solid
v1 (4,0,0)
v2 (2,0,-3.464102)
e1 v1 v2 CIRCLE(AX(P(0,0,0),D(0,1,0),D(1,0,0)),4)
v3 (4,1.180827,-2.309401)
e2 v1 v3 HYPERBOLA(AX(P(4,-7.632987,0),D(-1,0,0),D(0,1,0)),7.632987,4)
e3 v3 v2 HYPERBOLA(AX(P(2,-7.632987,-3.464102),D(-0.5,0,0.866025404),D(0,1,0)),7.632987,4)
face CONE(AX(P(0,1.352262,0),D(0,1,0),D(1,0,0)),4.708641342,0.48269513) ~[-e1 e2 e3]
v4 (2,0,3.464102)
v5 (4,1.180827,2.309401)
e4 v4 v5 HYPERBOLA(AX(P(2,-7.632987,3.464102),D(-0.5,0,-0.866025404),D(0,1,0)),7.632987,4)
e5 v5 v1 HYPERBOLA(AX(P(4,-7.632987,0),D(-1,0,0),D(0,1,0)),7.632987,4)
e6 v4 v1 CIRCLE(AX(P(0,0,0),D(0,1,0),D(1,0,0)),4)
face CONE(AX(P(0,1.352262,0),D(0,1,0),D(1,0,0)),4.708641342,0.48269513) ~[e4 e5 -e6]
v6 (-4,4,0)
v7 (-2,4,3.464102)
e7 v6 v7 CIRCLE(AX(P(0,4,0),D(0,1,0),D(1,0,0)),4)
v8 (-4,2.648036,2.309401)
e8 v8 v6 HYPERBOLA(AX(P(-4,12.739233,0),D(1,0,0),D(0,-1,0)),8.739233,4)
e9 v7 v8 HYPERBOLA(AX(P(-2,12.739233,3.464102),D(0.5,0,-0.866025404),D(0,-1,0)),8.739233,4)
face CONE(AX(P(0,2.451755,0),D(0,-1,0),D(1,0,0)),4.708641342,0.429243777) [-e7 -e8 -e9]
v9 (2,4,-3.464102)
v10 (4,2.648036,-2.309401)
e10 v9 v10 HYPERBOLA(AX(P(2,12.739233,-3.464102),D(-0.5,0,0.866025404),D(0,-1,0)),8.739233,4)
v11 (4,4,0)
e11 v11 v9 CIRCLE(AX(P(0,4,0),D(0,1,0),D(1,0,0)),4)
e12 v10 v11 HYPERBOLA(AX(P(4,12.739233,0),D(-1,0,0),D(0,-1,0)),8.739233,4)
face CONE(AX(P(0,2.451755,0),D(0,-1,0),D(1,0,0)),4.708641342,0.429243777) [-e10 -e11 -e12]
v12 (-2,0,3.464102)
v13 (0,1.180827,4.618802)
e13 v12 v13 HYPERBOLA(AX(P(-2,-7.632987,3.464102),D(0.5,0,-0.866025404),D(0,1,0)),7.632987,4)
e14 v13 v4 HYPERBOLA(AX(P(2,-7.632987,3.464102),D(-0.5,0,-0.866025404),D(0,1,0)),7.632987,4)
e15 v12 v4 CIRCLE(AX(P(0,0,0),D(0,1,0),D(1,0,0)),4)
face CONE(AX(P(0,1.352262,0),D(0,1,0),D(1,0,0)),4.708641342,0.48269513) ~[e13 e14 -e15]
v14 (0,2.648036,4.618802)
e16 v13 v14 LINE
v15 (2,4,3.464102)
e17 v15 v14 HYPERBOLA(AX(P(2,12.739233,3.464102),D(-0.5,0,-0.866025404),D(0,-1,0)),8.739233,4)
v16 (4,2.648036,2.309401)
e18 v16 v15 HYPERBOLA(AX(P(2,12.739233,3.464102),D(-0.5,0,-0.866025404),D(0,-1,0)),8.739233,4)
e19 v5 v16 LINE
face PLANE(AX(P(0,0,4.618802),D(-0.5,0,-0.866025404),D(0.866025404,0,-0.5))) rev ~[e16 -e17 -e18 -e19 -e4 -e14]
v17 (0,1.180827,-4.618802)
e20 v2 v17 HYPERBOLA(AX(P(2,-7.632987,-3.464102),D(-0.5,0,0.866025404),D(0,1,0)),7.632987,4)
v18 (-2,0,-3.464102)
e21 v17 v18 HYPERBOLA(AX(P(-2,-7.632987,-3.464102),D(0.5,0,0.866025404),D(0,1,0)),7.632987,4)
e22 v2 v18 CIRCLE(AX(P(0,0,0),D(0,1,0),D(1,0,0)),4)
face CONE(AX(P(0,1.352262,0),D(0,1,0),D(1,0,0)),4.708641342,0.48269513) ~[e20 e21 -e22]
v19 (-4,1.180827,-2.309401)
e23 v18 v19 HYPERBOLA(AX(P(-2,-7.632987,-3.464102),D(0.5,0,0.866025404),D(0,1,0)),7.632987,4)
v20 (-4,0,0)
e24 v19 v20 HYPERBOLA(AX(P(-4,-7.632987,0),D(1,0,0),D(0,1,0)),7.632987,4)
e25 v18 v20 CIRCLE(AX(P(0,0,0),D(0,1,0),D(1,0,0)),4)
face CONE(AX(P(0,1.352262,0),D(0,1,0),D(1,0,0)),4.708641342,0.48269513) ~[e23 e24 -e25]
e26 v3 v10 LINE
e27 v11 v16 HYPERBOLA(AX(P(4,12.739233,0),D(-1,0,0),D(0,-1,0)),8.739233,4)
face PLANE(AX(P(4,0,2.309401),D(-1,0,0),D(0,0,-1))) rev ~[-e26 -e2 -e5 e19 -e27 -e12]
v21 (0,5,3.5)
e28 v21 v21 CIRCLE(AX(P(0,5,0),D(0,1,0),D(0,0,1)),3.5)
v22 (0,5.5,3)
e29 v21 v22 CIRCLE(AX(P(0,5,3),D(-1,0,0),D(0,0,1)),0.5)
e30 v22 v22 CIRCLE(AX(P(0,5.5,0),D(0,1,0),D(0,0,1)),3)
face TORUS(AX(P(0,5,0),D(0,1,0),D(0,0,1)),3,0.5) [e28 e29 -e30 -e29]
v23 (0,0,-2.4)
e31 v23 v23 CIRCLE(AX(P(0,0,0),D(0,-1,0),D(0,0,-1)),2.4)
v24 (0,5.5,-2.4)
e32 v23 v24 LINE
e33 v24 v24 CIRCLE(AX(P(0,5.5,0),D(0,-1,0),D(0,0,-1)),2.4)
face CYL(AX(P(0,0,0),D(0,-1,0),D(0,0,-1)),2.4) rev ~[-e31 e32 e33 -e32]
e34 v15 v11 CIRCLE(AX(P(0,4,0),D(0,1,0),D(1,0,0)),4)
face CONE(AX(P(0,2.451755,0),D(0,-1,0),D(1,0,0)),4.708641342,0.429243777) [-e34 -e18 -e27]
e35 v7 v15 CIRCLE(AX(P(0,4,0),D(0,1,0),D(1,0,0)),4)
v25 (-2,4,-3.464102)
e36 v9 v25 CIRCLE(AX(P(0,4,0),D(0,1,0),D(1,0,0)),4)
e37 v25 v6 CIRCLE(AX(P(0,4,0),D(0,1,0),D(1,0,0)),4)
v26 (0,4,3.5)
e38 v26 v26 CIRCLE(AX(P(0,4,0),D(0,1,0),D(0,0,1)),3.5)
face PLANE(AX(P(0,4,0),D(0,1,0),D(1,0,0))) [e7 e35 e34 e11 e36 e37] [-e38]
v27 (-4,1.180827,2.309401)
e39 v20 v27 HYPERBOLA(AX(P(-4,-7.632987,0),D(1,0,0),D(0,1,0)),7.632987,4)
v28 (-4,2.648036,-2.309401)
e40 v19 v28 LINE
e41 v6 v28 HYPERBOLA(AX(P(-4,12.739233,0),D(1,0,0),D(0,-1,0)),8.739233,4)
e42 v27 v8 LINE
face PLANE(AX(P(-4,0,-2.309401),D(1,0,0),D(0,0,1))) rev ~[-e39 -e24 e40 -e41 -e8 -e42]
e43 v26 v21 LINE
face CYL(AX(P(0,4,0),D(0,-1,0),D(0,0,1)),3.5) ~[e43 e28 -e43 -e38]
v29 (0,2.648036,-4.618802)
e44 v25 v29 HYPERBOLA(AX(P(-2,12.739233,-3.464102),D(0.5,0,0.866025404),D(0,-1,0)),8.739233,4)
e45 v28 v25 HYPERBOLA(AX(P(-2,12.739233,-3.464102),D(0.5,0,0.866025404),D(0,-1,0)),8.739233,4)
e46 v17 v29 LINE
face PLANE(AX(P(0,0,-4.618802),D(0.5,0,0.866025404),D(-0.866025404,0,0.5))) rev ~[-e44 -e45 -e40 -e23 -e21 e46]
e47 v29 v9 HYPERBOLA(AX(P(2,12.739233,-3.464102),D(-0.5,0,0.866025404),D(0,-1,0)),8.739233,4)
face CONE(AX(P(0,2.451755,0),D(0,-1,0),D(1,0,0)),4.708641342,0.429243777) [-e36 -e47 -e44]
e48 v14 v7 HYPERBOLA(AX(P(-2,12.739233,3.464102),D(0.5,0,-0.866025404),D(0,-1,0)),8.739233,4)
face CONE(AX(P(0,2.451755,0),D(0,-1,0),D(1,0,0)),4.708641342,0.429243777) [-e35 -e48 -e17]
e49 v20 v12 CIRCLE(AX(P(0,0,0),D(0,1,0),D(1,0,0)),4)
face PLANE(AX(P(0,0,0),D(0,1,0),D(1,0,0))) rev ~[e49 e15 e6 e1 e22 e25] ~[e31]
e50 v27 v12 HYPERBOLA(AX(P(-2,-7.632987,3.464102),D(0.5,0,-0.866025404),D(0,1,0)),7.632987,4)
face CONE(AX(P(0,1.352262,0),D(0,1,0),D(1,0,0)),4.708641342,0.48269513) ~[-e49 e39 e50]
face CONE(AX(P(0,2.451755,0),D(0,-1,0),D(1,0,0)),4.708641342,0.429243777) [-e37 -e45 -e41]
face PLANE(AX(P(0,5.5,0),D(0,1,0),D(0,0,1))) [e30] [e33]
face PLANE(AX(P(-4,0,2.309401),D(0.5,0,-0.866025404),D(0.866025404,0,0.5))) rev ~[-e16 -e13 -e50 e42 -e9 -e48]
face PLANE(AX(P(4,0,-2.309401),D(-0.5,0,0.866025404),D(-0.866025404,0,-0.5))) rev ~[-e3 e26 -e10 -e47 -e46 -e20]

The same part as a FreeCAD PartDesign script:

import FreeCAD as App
import Part
import Sketcher
from FreeCAD import Vector
Q = App.Units.Quantity


def edges_at(feature, points):
    """Names of the edges that pass closest to the given points."""
    edges = feature.Shape.Edges
    near = lambda p: min(range(len(edges)), key=lambda i: edges[i].distToShape(Part.Vertex(*p))[0])
    return sorted({f"Edge{near(p) + 1}" for p in points})

doc = App.newDocument("Part")
body = doc.addObject("PartDesign::Body", "Body")

# Sketch on XZ plane
sketch1 = doc.addObject("Sketcher::SketchObject", "Sketch")
body.addObject(sketch1)
sketch1.AttachmentSupport = (doc.XZ_Plane, [""])
sketch1.MapMode = "FlatFace"
sketch1.addGeometry(Part.LineSegment(Vector(4, -2.309401, 0), Vector(0, -4.618802, 0)), False)
sketch1.addGeometry(Part.LineSegment(Vector(0, -4.618802, 0), Vector(-4, -2.309401, 0)), False)
sketch1.addGeometry(Part.LineSegment(Vector(-4, -2.309401, 0), Vector(-4, 2.309401, 0)), False)
sketch1.addGeometry(Part.LineSegment(Vector(-4, 2.309401, 0), Vector(0, 4.618802, 0)), False)
sketch1.addGeometry(Part.LineSegment(Vector(0, 4.618802, 0), Vector(4, 2.309401, 0)), False)
sketch1.addGeometry(Part.LineSegment(Vector(4, 2.309401, 0), Vector(4, -2.309401, 0)), False)
sketch1.addConstraint(Sketcher.Constraint("Coincident", 0, 2, 1, 1))
sketch1.addConstraint(Sketcher.Constraint("Coincident", 1, 2, 2, 1))
sketch1.addConstraint(Sketcher.Constraint("Coincident", 2, 2, 3, 1))
sketch1.addConstraint(Sketcher.Constraint("Coincident", 3, 2, 4, 1))
sketch1.addConstraint(Sketcher.Constraint("Coincident", 4, 2, 5, 1))
sketch1.addConstraint(Sketcher.Constraint("Coincident", 5, 2, 0, 1))
sketch1.addConstraint(Sketcher.Constraint("Vertical", 2))
sketch1.addConstraint(Sketcher.Constraint("Vertical", 5))
sketch1.addConstraint(Sketcher.Constraint("Symmetric", 0, 2, 3, 2, -1, 1))
sketch1.addConstraint(Sketcher.Constraint("Symmetric", 1, 2, 4, 2, -1, 1))
sketch1.addConstraint(Sketcher.Constraint("PointOnObject", 0, 2, -2))
sketch1.addConstraint(Sketcher.Constraint("Parallel", 0, 3))
sketch1.addConstraint(Sketcher.Constraint("Horizontal", 2, 2, 4, 2))
sketch1.addConstraint(Sketcher.Constraint("Angle", 0, Q("-150 deg")))
sketch1.addConstraint(Sketcher.Constraint("DistanceX", 1, 2, -1, 1, 4.0))
sketch1.addConstraint(Sketcher.Constraint("DistanceY", 1, 2, -1, 1, 2.309401))
pad1 = doc.addObject("PartDesign::Pad", "Pad")
body.addObject(pad1)
pad1.Profile = sketch1
pad1.Length = 4
pad1.Reversed = True

# Sketch on XZ plane
sketch2 = doc.addObject("Sketcher::SketchObject", "Sketch001")
body.addObject(sketch2)
sketch2.AttachmentSupport = (doc.XZ_Plane, [""])
sketch2.MapMode = "FlatFace"
sketch2.AttachmentOffset = App.Placement(Vector(0, 0, -4), App.Rotation())
sketch2.addGeometry(Part.Circle(Vector(0, 0, 0), Vector(0, 0, 1), 3.5), False)
sketch2.addConstraint(Sketcher.Constraint("Coincident", 0, 3, -1, 1))
sketch2.addConstraint(Sketcher.Constraint("Diameter", 0, 7.0))
pad2 = doc.addObject("PartDesign::Pad", "Pad001")
body.addObject(pad2)
pad2.Profile = sketch2
pad2.Length = 1.5
pad2.Reversed = True
doc.recompute()

fillet = doc.addObject("PartDesign::Fillet", "Fillet")
body.addObject(fillet)
fillet.Base = (pad2, edges_at(pad2, [(0, 5.5, -3.5)]))
fillet.Radius = 0.5

# Sketch on XZ plane
sketch3 = doc.addObject("Sketcher::SketchObject", "Sketch002")
body.addObject(sketch3)
sketch3.AttachmentSupport = (doc.XZ_Plane, [""])
sketch3.MapMode = "FlatFace"
sketch3.addGeometry(Part.Circle(Vector(0, 0, 0), Vector(0, 0, 1), 2.4), False)
sketch3.addConstraint(Sketcher.Constraint("Coincident", 0, 3, -1, 1))
sketch3.addConstraint(Sketcher.Constraint("Diameter", 0, 4.8))
pocket1 = doc.addObject("PartDesign::Pocket", "Pocket")
body.addObject(pocket1)
pocket1.Profile = sketch3
pocket1.Type = "ThroughAll"

# Sketch on XY plane
sketch4 = doc.addObject("Sketcher::SketchObject", "Sketch003")
body.addObject(sketch4)
sketch4.AttachmentSupport = (doc.XY_Plane, [""])
sketch4.MapMode = "FlatFace"
sketch4.addGeometry(Part.LineSegment(Vector(4.708641, 0, 0), Vector(4.708641, 1.352262, 0)), False)
sketch4.addGeometry(Part.LineSegment(Vector(4.708641, 1.352262, 0), Vector(4, 0, 0)), False)
sketch4.addGeometry(Part.LineSegment(Vector(4, 0, 0), Vector(4.708641, 0, 0)), False)
sketch4.addGeometry(Part.LineSegment(Vector(4.708641, 4, 0), Vector(4, 4, 0)), False)
sketch4.addGeometry(Part.LineSegment(Vector(4, 4, 0), Vector(4.708641, 2.451755, 0)), False)
sketch4.addGeometry(Part.LineSegment(Vector(4.708641, 2.451755, 0), Vector(4.708641, 4, 0)), False)
sketch4.addConstraint(Sketcher.Constraint("Coincident", 0, 2, 1, 1))
sketch4.addConstraint(Sketcher.Constraint("Coincident", 1, 2, 2, 1))
sketch4.addConstraint(Sketcher.Constraint("Coincident", 2, 2, 0, 1))
sketch4.addConstraint(Sketcher.Constraint("Coincident", 3, 2, 4, 1))
sketch4.addConstraint(Sketcher.Constraint("Coincident", 4, 2, 5, 1))
sketch4.addConstraint(Sketcher.Constraint("Coincident", 5, 2, 3, 1))
sketch4.addConstraint(Sketcher.Constraint("Vertical", 0))
sketch4.addConstraint(Sketcher.Constraint("Horizontal", 2))
sketch4.addConstraint(Sketcher.Constraint("Horizontal", 3))
sketch4.addConstraint(Sketcher.Constraint("Vertical", 5))
sketch4.addConstraint(Sketcher.Constraint("PointOnObject", 1, 2, -1))
sketch4.addConstraint(Sketcher.Constraint("Vertical", 1, 2, 3, 2))
sketch4.addConstraint(Sketcher.Constraint("Vertical", 2, 2, 4, 2))
sketch4.addConstraint(Sketcher.Constraint("DistanceX", -1, 1, 1, 2, 4.0))
sketch4.addConstraint(Sketcher.Constraint("DistanceY", -1, 1, 3, 2, 4.0))
sketch4.addConstraint(Sketcher.Constraint("DistanceX", 2, 1, 2, 2, 0.708641))
sketch4.addConstraint(Sketcher.Constraint("Distance", 1, 1.526691))
sketch4.addConstraint(Sketcher.Constraint("DistanceY", 5, 1, 5, 2, 1.548245))
groove = doc.addObject("PartDesign::Groove", "Groove")
body.addObject(groove)
groove.Profile = sketch4
groove.ReferenceAxis = (sketch4, ["V_Axis"])
groove.Angle = 360

doc.recompute()
